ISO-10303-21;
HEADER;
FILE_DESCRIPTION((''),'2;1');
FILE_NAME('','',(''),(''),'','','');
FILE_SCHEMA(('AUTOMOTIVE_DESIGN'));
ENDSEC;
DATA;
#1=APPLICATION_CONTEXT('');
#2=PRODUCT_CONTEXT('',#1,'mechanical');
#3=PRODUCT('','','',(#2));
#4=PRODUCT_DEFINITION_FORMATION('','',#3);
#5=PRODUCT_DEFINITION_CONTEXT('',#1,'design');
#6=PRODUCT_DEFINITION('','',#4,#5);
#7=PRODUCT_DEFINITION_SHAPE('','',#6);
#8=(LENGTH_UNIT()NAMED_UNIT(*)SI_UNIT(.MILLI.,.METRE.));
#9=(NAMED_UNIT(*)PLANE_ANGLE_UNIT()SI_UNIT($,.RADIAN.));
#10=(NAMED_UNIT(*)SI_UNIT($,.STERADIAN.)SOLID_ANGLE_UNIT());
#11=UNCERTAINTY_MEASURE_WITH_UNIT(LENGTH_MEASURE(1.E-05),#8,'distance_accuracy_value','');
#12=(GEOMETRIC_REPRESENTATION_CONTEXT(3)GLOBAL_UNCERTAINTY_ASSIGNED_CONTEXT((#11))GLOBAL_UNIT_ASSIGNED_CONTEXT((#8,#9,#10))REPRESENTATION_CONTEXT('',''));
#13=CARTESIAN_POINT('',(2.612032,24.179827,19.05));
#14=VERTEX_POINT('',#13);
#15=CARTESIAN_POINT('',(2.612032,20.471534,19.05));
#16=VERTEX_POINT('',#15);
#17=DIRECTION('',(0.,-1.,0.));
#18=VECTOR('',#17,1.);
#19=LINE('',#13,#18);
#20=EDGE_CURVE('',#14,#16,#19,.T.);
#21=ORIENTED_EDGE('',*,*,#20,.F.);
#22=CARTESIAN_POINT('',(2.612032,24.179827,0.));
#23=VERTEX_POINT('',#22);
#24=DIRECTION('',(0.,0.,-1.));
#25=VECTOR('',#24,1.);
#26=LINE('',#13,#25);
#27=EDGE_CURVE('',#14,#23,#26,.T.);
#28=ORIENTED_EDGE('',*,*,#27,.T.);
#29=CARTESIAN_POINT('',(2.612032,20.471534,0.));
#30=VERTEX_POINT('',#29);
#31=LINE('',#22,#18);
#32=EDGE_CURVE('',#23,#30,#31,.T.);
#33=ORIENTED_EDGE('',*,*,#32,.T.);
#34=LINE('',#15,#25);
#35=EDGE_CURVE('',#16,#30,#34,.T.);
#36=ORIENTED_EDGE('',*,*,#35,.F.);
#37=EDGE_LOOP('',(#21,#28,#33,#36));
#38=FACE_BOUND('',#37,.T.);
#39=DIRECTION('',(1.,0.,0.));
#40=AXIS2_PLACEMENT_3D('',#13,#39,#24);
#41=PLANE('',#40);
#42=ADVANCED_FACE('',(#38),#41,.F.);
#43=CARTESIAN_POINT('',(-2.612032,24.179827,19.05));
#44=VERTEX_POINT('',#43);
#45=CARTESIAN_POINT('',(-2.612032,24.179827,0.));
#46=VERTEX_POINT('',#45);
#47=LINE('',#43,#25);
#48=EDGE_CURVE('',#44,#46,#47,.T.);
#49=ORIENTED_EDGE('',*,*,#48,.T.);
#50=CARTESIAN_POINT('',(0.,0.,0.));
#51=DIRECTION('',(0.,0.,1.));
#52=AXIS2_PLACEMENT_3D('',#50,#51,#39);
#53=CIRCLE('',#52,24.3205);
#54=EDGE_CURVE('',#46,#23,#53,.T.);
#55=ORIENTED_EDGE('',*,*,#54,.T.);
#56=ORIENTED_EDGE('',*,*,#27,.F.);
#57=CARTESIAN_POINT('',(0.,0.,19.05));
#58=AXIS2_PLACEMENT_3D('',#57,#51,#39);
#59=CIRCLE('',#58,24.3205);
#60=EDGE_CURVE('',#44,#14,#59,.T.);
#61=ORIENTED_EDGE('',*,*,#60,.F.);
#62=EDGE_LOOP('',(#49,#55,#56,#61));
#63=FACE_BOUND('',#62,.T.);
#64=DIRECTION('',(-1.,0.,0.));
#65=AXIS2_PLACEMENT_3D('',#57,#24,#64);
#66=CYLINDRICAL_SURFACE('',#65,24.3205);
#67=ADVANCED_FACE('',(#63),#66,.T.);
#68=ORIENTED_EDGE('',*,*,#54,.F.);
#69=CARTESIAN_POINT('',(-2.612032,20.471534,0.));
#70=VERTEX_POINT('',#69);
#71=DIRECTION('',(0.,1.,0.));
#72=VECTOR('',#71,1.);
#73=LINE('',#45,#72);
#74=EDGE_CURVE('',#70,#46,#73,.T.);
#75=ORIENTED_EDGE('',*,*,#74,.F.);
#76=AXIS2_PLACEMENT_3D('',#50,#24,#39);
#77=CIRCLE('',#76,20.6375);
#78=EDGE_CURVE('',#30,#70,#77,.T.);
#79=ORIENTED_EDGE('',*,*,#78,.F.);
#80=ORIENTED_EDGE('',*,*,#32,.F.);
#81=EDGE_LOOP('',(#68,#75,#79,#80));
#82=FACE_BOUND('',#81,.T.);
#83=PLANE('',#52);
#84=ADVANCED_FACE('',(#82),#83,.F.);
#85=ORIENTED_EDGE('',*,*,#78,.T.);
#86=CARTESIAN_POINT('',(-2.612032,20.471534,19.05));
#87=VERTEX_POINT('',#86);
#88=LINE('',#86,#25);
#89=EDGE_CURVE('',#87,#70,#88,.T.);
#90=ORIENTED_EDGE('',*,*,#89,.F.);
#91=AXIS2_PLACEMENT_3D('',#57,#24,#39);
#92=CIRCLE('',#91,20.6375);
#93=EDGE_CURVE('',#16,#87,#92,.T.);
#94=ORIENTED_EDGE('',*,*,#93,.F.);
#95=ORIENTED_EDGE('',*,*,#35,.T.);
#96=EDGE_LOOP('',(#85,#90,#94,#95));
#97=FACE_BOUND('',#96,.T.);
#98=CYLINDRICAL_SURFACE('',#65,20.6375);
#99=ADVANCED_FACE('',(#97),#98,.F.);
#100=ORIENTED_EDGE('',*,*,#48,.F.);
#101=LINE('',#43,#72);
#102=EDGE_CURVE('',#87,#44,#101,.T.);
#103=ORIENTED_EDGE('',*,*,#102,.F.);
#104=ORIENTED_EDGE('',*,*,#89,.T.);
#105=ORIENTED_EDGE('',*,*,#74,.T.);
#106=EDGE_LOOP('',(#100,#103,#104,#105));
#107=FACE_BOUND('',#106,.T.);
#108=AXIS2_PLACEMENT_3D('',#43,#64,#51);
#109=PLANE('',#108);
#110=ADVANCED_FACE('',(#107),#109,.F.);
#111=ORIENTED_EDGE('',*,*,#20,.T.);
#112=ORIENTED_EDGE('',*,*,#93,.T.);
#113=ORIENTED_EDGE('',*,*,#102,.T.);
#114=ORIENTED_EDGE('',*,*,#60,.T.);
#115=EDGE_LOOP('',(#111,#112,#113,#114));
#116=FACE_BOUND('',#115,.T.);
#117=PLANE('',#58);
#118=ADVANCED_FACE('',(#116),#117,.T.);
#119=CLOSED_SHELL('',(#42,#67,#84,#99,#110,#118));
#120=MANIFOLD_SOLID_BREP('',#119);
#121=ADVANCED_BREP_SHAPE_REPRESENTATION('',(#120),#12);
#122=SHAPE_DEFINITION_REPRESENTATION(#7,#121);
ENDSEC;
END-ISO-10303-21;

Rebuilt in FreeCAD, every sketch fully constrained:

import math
import FreeCAD as App
import Part
import Sketcher

V = App.Vector
Q = App.Units.Quantity

doc = App.newDocument("Part")
body = doc.addObject("PartDesign::Body", "Body")

sketch1 = body.newObject("Sketcher::SketchObject", "Sketch")
sketch1.AttachmentSupport = (doc.getObject("XY_Plane"), [""])
sketch1.MapMode = "FlatFace"
sketch1.addGeometry(Part.LineSegment(V(-2.6, 20.5, 0), V(-2.6, 24.2, 0)), False)
sketch1.addGeometry(Part.ArcOfCircle(Part.Circle(V(0, 0, 0), V(0, 0, 1), 24.3), math.radians(96), math.radians(444)), False)
sketch1.addGeometry(Part.LineSegment(V(2.6, 24.2, 0), V(2.6, 20.5, 0)), False)
sketch1.addGeometry(Part.ArcOfCircle(Part.Circle(V(0, 0, 0), V(0, 0, 1), 20.6), math.radians(97), math.radians(443)), False)
sketch1.addConstraint(Sketcher.Constraint("Coincident", 0, 2, 1, 1))
sketch1.addConstraint(Sketcher.Constraint("Coincident", 1, 2, 2, 1))
sketch1.addConstraint(Sketcher.Constraint("Coincident", 2, 2, 3, 2))
sketch1.addConstraint(Sketcher.Constraint("Coincident", 3, 1, 0, 1))
sketch1.addConstraint(Sketcher.Constraint("Vertical", 0))
sketch1.addConstraint(Sketcher.Constraint("Vertical", 2))
sketch1.addConstraint(Sketcher.Constraint("Coincident", 1, 3, -1, 1))
sketch1.addConstraint(Sketcher.Constraint("Coincident", 3, 3, -1, 1))
sketch1.addConstraint(Sketcher.Constraint("Horizontal", 0, 2, 1, 2))
sketch1.addConstraint(Sketcher.Constraint("Radius", 3, Q("0.8125 in")))
sketch1.addConstraint(Sketcher.Constraint("Radius", 1, Q("0.9575 in")))
sketch1.addConstraint(Sketcher.Constraint("DistanceY", 0, 1, 0, 2, Q("3.708293 mm")))
pad1 = body.newObject("PartDesign::Pad", "Pad")
pad1.Profile = sketch1
pad1.Length = Q("0.75 in")

doc.recompute()
